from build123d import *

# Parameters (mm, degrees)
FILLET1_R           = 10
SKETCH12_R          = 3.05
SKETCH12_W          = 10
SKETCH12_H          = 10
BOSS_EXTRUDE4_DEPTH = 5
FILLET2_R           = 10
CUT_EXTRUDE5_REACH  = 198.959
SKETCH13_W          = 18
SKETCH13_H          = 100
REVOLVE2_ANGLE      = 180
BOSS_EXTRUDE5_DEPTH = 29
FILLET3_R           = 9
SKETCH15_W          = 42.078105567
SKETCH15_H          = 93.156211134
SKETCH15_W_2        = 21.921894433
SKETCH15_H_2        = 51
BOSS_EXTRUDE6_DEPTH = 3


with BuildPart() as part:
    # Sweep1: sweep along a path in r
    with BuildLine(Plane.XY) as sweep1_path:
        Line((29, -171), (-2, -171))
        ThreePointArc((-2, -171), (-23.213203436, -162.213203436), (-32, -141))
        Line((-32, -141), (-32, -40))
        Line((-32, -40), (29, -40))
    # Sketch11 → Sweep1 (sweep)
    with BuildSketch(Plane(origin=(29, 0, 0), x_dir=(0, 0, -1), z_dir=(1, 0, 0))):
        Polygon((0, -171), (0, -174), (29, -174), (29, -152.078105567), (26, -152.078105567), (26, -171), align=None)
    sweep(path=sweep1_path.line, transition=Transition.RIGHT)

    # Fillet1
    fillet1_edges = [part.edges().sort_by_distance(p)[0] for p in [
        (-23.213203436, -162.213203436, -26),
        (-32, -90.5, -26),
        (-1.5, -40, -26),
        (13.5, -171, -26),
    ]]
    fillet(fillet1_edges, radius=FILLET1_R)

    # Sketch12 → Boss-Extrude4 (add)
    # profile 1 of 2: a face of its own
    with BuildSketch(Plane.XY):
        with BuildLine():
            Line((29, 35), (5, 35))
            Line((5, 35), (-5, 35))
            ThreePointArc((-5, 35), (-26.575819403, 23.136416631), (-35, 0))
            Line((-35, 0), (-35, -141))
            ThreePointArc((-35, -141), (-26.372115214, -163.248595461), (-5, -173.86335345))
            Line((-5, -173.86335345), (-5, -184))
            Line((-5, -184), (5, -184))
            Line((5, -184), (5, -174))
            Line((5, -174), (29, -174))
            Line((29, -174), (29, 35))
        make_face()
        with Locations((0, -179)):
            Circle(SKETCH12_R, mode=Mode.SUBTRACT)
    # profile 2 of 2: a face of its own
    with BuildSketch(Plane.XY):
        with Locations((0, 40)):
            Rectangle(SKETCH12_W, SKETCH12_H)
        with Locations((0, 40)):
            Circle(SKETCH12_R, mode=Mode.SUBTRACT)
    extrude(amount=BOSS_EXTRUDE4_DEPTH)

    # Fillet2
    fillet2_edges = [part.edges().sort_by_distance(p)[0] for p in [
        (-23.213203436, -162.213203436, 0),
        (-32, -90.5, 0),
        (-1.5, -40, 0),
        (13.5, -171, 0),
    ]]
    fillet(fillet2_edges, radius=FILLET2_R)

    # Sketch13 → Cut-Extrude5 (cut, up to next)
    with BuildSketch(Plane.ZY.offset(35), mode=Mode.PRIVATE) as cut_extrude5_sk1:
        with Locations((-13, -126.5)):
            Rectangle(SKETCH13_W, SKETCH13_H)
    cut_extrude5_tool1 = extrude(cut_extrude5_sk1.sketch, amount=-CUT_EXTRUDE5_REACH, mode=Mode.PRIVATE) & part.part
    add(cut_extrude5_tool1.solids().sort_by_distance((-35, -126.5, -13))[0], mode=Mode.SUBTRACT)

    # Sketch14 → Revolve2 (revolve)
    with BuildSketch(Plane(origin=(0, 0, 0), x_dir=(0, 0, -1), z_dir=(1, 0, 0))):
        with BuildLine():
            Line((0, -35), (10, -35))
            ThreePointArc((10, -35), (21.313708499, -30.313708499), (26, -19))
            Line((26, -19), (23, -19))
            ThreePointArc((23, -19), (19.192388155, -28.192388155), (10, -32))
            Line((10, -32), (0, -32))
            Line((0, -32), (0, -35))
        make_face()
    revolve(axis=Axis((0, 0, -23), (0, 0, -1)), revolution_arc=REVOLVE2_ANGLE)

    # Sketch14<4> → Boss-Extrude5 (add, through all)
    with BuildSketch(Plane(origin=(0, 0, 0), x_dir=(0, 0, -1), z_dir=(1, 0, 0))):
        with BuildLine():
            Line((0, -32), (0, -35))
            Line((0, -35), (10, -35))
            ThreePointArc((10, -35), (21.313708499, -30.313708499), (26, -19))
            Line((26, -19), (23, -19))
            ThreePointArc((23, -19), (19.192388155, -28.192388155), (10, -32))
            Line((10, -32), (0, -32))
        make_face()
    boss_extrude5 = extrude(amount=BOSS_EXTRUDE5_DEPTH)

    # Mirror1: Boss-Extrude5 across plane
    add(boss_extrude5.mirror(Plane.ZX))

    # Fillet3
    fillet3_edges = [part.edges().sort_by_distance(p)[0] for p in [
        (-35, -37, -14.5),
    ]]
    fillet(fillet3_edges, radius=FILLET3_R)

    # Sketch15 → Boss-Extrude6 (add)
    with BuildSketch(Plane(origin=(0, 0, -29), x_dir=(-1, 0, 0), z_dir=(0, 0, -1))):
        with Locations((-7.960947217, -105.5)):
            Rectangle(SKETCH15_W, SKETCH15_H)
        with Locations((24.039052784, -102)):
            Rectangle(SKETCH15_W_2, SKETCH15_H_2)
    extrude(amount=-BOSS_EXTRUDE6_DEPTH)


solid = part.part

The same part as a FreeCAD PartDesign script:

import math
import FreeCAD as App
import Part
import Sketcher
from FreeCAD import Vector


def edges_at(feature, points):
    """Names of the edges that pass closest to the given points."""
    edges = feature.Shape.Edges
    near = lambda p: min(range(len(edges)), key=lambda i: edges[i].distToShape(Part.Vertex(*p))[0])
    return sorted({f"Edge{near(p) + 1}" for p in points})

doc = App.newDocument("Part")
body = doc.addObject("PartDesign::Body", "Body")

sketch1 = body.newObject("Sketcher::SketchObject", "Sketch")
sketch1.AttachmentSupport = (doc.getObject("YZ_Plane"), [""])
sketch1.MapMode = "FlatFace"
sketch1.AttachmentOffset = App.Placement(Vector(0, 0, 29), App.Rotation())
sketch1.addGeometry([
    Part.LineSegment(Vector(-171, 0, 0), Vector(-174, 0, 0)),
    Part.LineSegment(Vector(-174, 0, 0), Vector(-174, -29, 0)),
    Part.LineSegment(Vector(-174, -29, 0), Vector(-152.1, -29, 0)),
    Part.LineSegment(Vector(-152.1, -29, 0), Vector(-152.1, -26, 0)),
    Part.LineSegment(Vector(-152.1, -26, 0), Vector(-171, -26, 0)),
    Part.LineSegment(Vector(-171, -26, 0), Vector(-171, 0, 0)),
], False)
sketch1.addConstraint([
    Sketcher.Constraint("Coincident", 0, 2, 1, 1),
    Sketcher.Constraint("Coincident", 1, 2, 2, 1),
    Sketcher.Constraint("Coincident", 2, 2, 3, 1),
    Sketcher.Constraint("Coincident", 3, 2, 4, 1),
    Sketcher.Constraint("Coincident", 4, 2, 5, 1),
    Sketcher.Constraint("Coincident", 5, 2, 0, 1),
    Sketcher.Constraint("Horizontal", 0),
    Sketcher.Constraint("Vertical", 1),
    Sketcher.Constraint("Horizontal", 2),
    Sketcher.Constraint("Vertical", 3),
    Sketcher.Constraint("Horizontal", 4),
    Sketcher.Constraint("Vertical", 5),
    Sketcher.Constraint("PointOnObject", 0, 2, -1),
    Sketcher.Constraint("Equal", 0, 3),
    Sketcher.Constraint("DistanceX", 0, 2, 0, 1, 3.0),
    Sketcher.Constraint("DistanceY", 1, 2, 1, 1, 29.0),
    Sketcher.Constraint("DistanceX", 0, 2, -1, 1, 174.0),
    Sketcher.Constraint("DistanceX", 2, 1, 2, 2, 21.921894),
])

sketch2 = body.newObject("Sketcher::SketchObject", "Sketch001")
sketch2.AttachmentSupport = (doc.getObject("XY_Plane"), [""])
sketch2.MapMode = "FlatFace"
sketch2.addGeometry([
    Part.LineSegment(Vector(29, -171, 0), Vector(-2, -171, 0)),
    Part.ArcOfCircle(Part.Circle(Vector(-2, -141, 0), Vector(0, 0, 1), 30), math.radians(180), math.radians(270)),
    Part.LineSegment(Vector(-32, -141, 0), Vector(-32, -40, 0)),
    Part.LineSegment(Vector(-32, -40, 0), Vector(29, -40, 0)),
], False)
sketch2.addConstraint([
    Sketcher.Constraint("Tangent", 0, 2, 1, 2),
    Sketcher.Constraint("Tangent", 1, 1, 2, 1),
    Sketcher.Constraint("Coincident", 2, 2, 3, 1),
    Sketcher.Constraint("Horizontal", 0),
    Sketcher.Constraint("Vertical", 2),
    Sketcher.Constraint("Horizontal", 3),
    Sketcher.Constraint("Vertical", 0, 1, 3, 2),
    Sketcher.Constraint("Radius", 1, 30.0),
    Sketcher.Constraint("DistanceX", 0, 2, 0, 1, 31.0),
    Sketcher.Constraint("DistanceY", 2, 1, 2, 2, 101.0),
    Sketcher.Constraint("DistanceX", 1, 3, -1, 1, 2.0),
    Sketcher.Constraint("DistanceY", 1, 3, -1, 1, 141.0),
])
doc.recompute()

additivepipe = body.newObject("PartDesign::AdditivePipe", "AdditivePipe")
additivepipe.Profile = sketch1
additivepipe.Spine = (sketch2, ["Edge1", "Edge2", "Edge3", "Edge4"])
additivepipe.Transition = "Right corner"
doc.recompute()

fillet = body.newObject("PartDesign::Fillet", "Fillet")
fillet.Base = (additivepipe, edges_at(additivepipe, [
    (-23.213, -162.213, -26),
    (-32, -90.5, -26),
    (-1.5, -40, -26),
    (13.5, -171, -26),
]))
fillet.Radius = 10

sketch3 = body.newObject("Sketcher::SketchObject", "Sketch002")
sketch3.AttachmentSupport = (doc.getObject("XY_Plane"), [""])
sketch3.MapMode = "FlatFace"
sketch3.addGeometry([
    Part.LineSegment(Vector(29, 35, 0), Vector(5, 35, 0)),
    Part.LineSegment(Vector(5, 35, 0), Vector(5, 45, 0)),
    Part.LineSegment(Vector(5, 45, 0), Vector(-5, 45, 0)),
    Part.LineSegment(Vector(-5, 45, 0), Vector(-5, 35, 0)),
    Part.ArcOfCircle(Part.Circle(Vector(0, 0.4, 0), Vector(0, 0, 1), 35), math.radians(98), math.radians(181)),
    Part.LineSegment(Vector(-35, 0, 0), Vector(-35, -141, 0)),
    Part.ArcOfCircle(Part.Circle(Vector(-2, -141, 0), Vector(0, 0, 1), 33), math.radians(180), math.radians(265)),
    Part.LineSegment(Vector(-5, -173.9, 0), Vector(-5, -184, 0)),
    Part.LineSegment(Vector(-5, -184, 0), Vector(5, -184, 0)),
    Part.LineSegment(Vector(5, -184, 0), Vector(5, -174, 0)),
    Part.LineSegment(Vector(5, -174, 0), Vector(29, -174, 0)),
    Part.LineSegment(Vector(29, -174, 0), Vector(29, 35, 0)),
    Part.Circle(Vector(0, -179, 0), Vector(0, 0, 1), 3),
    Part.Circle(Vector(0, 40, 0), Vector(0, 0, 1), 3),
], False)
sketch3.addConstraint([
    Sketcher.Constraint("Coincident", 0, 2, 1, 1),
    Sketcher.Constraint("Coincident", 1, 2, 2, 1),
    Sketcher.Constraint("Coincident", 2, 2, 3, 1),
    Sketcher.Constraint("Coincident", 3, 2, 4, 1),
    Sketcher.Constraint("Coincident", 4, 2, 5, 1),
    Sketcher.Constraint("Tangent", 5, 2, 6, 1),
    Sketcher.Constraint("Coincident", 6, 2, 7, 1),
    Sketcher.Constraint("Coincident", 7, 2, 8, 1),
    Sketcher.Constraint("Coincident", 8, 2, 9, 1),
    Sketcher.Constraint("Coincident", 9, 2, 10, 1),
    Sketcher.Constraint("Coincident", 10, 2, 11, 1),
    Sketcher.Constraint("Coincident", 11, 2, 0, 1),
    Sketcher.Constraint("Horizontal", 0),
    Sketcher.Constraint("Vertical", 1),
    Sketcher.Constraint("Horizontal", 2),
    Sketcher.Constraint("Vertical", 3),
    Sketcher.Constraint("Vertical", 5),
    Sketcher.Constraint("Vertical", 7),
    Sketcher.Constraint("Horizontal", 8),
    Sketcher.Constraint("Vertical", 9),
    Sketcher.Constraint("Horizontal", 10),
    Sketcher.Constraint("Vertical", 11),
    Sketcher.Constraint("Equal", 12, 13),
    Sketcher.Constraint("Symmetric", 0, 2, 3, 2, -2),
    Sketcher.Constraint("PointOnObject", 12, 3, -2),
    Sketcher.Constraint("PointOnObject", 13, 3, -2),
    Sketcher.Constraint("PointOnObject", 4, 2, -1),
    Sketcher.Constraint("Vertical", 3, 2, 6, 2),
    Sketcher.Constraint("Vertical", 1, 2, 8, 2),
    Sketcher.Constraint("Equal", 8, 1),
    Sketcher.Constraint("Equal", 3, 9),
    Sketcher.Constraint("Radius", 4, 35.0),
    Sketcher.Constraint("Radius", 6, 33.0),
    Sketcher.Constraint("Diameter", 12, 6.1),
    Sketcher.Constraint("DistanceX", 0, 2, 0, 1, 24.0),
    Sketcher.Constraint("DistanceX", 2, 2, 2, 1, 10.0),
    Sketcher.Constraint("DistanceY", 5, 2, 5, 1, 141.0),
    Sketcher.Constraint("DistanceY", 11, 1, 11, 2, 209.0),
    Sketcher.Constraint("DistanceX", 6, 3, -1, 1, 2.0),
    Sketcher.Constraint("DistanceY", 12, 3, -1, 1, 179.0),
    Sketcher.Constraint("DistanceY", -1, 1, 13, 3, 40.0),
    Sketcher.Constraint("DistanceY", -1, 1, 0, 2, 35.0),
])
pad1 = body.newObject("PartDesign::Pad", "Pad")
pad1.Profile = sketch3
pad1.Length = 5
doc.recompute()

fillet2 = body.newObject("PartDesign::Fillet", "Fillet001")
fillet2.Base = (pad1, edges_at(pad1, [
    (-23.213, -162.213, 0),
    (-32, -90.5, 0),
    (-1.5, -40, 0),
    (13.5, -171, 0),
]))
fillet2.Radius = 10

sketch4 = body.newObject("Sketcher::SketchObject", "Sketch003")
sketch4.AttachmentSupport = (doc.getObject("YZ_Plane"), [""])
sketch4.MapMode = "FlatFace"
sketch4.AttachmentOffset = App.Placement(Vector(0, 0, -35), App.Rotation())
sketch4.addGeometry([
    Part.LineSegment(Vector(-76, -22, 0), Vector(-176, -22, 0)),
    Part.LineSegment(Vector(-176, -22, 0), Vector(-176, -4, 0)),
    Part.LineSegment(Vector(-176, -4, 0), Vector(-76, -4, 0)),
    Part.LineSegment(Vector(-76, -4, 0), Vector(-76, -22, 0)),
], False)
sketch4.addConstraint([
    Sketcher.Constraint("Coincident", 0, 2, 1, 1),
    Sketcher.Constraint("Coincident", 1, 2, 2, 1),
    Sketcher.Constraint("Coincident", 2, 2, 3, 1),
    Sketcher.Constraint("Coincident", 3, 2, 0, 1),
    Sketcher.Constraint("Horizontal", 0),
    Sketcher.Constraint("Vertical", 1),
    Sketcher.Constraint("Horizontal", 2),
    Sketcher.Constraint("Vertical", 3),
    Sketcher.Constraint("DistanceX", 0, 2, 0, 1, 100.0),
    Sketcher.Constraint("DistanceY", 1, 1, 1, 2, 18.0),
    Sketcher.Constraint("DistanceY", 0, 2, -1, 1, 22.0),
    Sketcher.Constraint("DistanceX", 0, 2, -1, 1, 176.5),
])
pocket1 = body.newObject("PartDesign::Pocket", "Pocket")
pocket1.Profile = sketch4
pocket1.Length = 64
pocket1.Reversed = True

sketch5 = body.newObject("Sketcher::SketchObject", "Sketch004")
sketch5.AttachmentSupport = (doc.getObject("YZ_Plane"), [""])
sketch5.MapMode = "FlatFace"
sketch5.addGeometry([
    Part.LineSegment(Vector(-35, 0, 0), Vector(-35, -10, 0)),
    Part.ArcOfCircle(Part.Circle(Vector(-19, -10, 0), Vector(0, 0, 1), 16), math.radians(180), math.radians(270)),
    Part.LineSegment(Vector(-19, -26, 0), Vector(-19, -23, 0)),
    Part.ArcOfCircle(Part.Circle(Vector(-19, -10, 0), Vector(0, 0, 1), 13), math.radians(-180), math.radians(-90)),
    Part.LineSegment(Vector(-32, -10, 0), Vector(-32, 0, 0)),
    Part.LineSegment(Vector(-32, 0, 0), Vector(-35, 0, 0)),
], False)
sketch5.addConstraint([
    Sketcher.Constraint("Tangent", 0, 2, 1, 1),
    Sketcher.Constraint("Coincident", 1, 2, 2, 1),
    Sketcher.Constraint("Coincident", 2, 2, 3, 2),
    Sketcher.Constraint("Tangent", 3, 1, 4, 1),
    Sketcher.Constraint("Coincident", 4, 2, 5, 1),
    Sketcher.Constraint("Coincident", 5, 2, 0, 1),
    Sketcher.Constraint("Vertical", 0),
    Sketcher.Constraint("Vertical", 2),
    Sketcher.Constraint("Vertical", 4),
    Sketcher.Constraint("Horizontal", 5),
    Sketcher.Constraint("Coincident", 3, 3, 1, 3),
    Sketcher.Constraint("PointOnObject", 4, 2, -1),
    Sketcher.Constraint("Vertical", 3, 3, 1, 2),
    Sketcher.Constraint("Radius", 1, 16.0),
    Sketcher.Constraint("Radius", 3, 13.0),
    Sketcher.Constraint("DistanceY", 0, 2, 0, 1, 10.0),
    Sketcher.Constraint("DistanceX", 1, 3, -1, 1, 19.0),
])
revolution = body.newObject("PartDesign::Revolution", "Revolution")
revolution.Profile = sketch5
revolution.ReferenceAxis = (sketch5, ["V_Axis"])
revolution.Angle = 180
revolution.Reversed = True

sketch6 = body.newObject("Sketcher::SketchObject", "Sketch005")
sketch6.AttachmentSupport = (doc.getObject("YZ_Plane"), [""])
sketch6.MapMode = "FlatFace"
sketch6.addGeometry([
    Part.LineSegment(Vector(-32, 0, 0), Vector(-35, 0, 0)),
    Part.LineSegment(Vector(-35, 0, 0), Vector(-35, -10, 0)),
    Part.ArcOfCircle(Part.Circle(Vector(-19, -10, 0), Vector(0, 0, 1), 16), math.radians(180), math.radians(270)),
    Part.LineSegment(Vector(-19, -26, 0), Vector(-19, -23, 0)),
    Part.ArcOfCircle(Part.Circle(Vector(-19, -10, 0), Vector(0, 0, 1), 13), math.radians(-180), math.radians(-90)),
    Part.LineSegment(Vector(-32, -10, 0), Vector(-32, 0, 0)),
], False)
sketch6.addConstraint([
    Sketcher.Constraint("Coincident", 0, 2, 1, 1),
    Sketcher.Constraint("Tangent", 1, 2, 2, 1),
    Sketcher.Constraint("Coincident", 2, 2, 3, 1),
    Sketcher.Constraint("Coincident", 3, 2, 4, 2),
    Sketcher.Constraint("Tangent", 4, 1, 5, 1),
    Sketcher.Constraint("Coincident", 5, 2, 0, 1),
    Sketcher.Constraint("Horizontal", 0),
    Sketcher.Constraint("Vertical", 1),
    Sketcher.Constraint("Vertical", 3),
    Sketcher.Constraint("Vertical", 5),
    Sketcher.Constraint("Coincident", 4, 3, 2, 3),
    Sketcher.Constraint("PointOnObject", 0, 2, -1),
    Sketcher.Constraint("Vertical", 4, 3, 2, 2),
    Sketcher.Constraint("Radius", 2, 16.0),
    Sketcher.Constraint("Radius", 4, 13.0),
    Sketcher.Constraint("DistanceY", 1, 2, 1, 1, 10.0),
    Sketcher.Constraint("DistanceX", 2, 3, -1, 1, 19.0),
])
pad2 = body.newObject("PartDesign::Pad", "Pad001")
pad2.Profile = sketch6
pad2.Length = 29
doc.recompute()

mirrored = body.newObject("PartDesign::Mirrored", "Mirrored")
mirrored.Originals = [pad2]
mirrored.MirrorPlane = (doc.getObject("XZ_Plane"), [""])
body.Tip = mirrored
doc.recompute()

fillet3 = body.newObject("PartDesign::Fillet", "Fillet002")
fillet3.Base = (mirrored, edges_at(mirrored, [(-35, -37, -14.5)]))
fillet3.Radius = 9

sketch7 = body.newObject("Sketcher::SketchObject", "Sketch006")
sketch7.AttachmentSupport = (doc.getObject("XY_Plane"), [""])
sketch7.MapMode = "FlatFace"
sketch7.AttachmentOffset = App.Placement(Vector(0, 0, -29), App.Rotation())
sketch7.addGeometry([
    Part.LineSegment(Vector(29, -59, 0), Vector(29, -152, 0)),
    Part.LineSegment(Vector(29, -152, 0), Vector(-13, -152, 0)),
    Part.LineSegment(Vector(-13, -152, 0), Vector(-13, -128, 0)),
    Part.LineSegment(Vector(-13, -128, 0), Vector(-35, -128, 0)),
    Part.LineSegment(Vector(-35, -128, 0), Vector(-35, -76, 0)),
    Part.LineSegment(Vector(-35, -76, 0), Vector(-13, -76, 0)),
    Part.LineSegment(Vector(-13, -76, 0), Vector(-13, -59, 0)),
    Part.LineSegment(Vector(-13, -59, 0), Vector(29, -59, 0)),
], False)
sketch7.addConstraint([
    Sketcher.Constraint("Coincident", 0, 2, 1, 1),
    Sketcher.Constraint("Coincident", 1, 2, 2, 1),
    Sketcher.Constraint("Coincident", 2, 2, 3, 1),
    Sketcher.Constraint("Coincident", 3, 2, 4, 1),
    Sketcher.Constraint("Coincident", 4, 2, 5, 1),
    Sketcher.Constraint("Coincident", 5, 2, 6, 1),
    Sketcher.Constraint("Coincident", 6, 2, 7, 1),
    Sketcher.Constraint("Coincident", 7, 2, 0, 1),
    Sketcher.Constraint("Vertical", 0),
    Sketcher.Constraint("Horizontal", 1),
    Sketcher.Constraint("Vertical", 2),
    Sketcher.Constraint("Horizontal", 3),
    Sketcher.Constraint("Vertical", 4),
    Sketcher.Constraint("Horizontal", 5),
    Sketcher.Constraint("Vertical", 6),
    Sketcher.Constraint("Horizontal", 7),
    Sketcher.Constraint("Vertical", 2, 2, 5, 2),
    Sketcher.Constraint("DistanceY", 4, 1, 4, 2, 51.0),
    Sketcher.Constraint("DistanceX", -1, 1, 0, 2, 29.0),
    Sketcher.Constraint("DistanceX", 3, 2, -1, 1, 35.0),
    Sketcher.Constraint("DistanceY", 2, 2, -1, 1, 127.5),
    Sketcher.Constraint("DistanceY", 0, 2, 0, 1, 93.156211),
    Sketcher.Constraint("DistanceX", 1, 2, 1, 1, 42.078106),
    Sketcher.Constraint("DistanceY", 2, 1, 2, 2, 24.578106),
])
pad3 = body.newObject("PartDesign::Pad", "Pad002")
pad3.Profile = sketch7
pad3.Length = 3

doc.recompute()
